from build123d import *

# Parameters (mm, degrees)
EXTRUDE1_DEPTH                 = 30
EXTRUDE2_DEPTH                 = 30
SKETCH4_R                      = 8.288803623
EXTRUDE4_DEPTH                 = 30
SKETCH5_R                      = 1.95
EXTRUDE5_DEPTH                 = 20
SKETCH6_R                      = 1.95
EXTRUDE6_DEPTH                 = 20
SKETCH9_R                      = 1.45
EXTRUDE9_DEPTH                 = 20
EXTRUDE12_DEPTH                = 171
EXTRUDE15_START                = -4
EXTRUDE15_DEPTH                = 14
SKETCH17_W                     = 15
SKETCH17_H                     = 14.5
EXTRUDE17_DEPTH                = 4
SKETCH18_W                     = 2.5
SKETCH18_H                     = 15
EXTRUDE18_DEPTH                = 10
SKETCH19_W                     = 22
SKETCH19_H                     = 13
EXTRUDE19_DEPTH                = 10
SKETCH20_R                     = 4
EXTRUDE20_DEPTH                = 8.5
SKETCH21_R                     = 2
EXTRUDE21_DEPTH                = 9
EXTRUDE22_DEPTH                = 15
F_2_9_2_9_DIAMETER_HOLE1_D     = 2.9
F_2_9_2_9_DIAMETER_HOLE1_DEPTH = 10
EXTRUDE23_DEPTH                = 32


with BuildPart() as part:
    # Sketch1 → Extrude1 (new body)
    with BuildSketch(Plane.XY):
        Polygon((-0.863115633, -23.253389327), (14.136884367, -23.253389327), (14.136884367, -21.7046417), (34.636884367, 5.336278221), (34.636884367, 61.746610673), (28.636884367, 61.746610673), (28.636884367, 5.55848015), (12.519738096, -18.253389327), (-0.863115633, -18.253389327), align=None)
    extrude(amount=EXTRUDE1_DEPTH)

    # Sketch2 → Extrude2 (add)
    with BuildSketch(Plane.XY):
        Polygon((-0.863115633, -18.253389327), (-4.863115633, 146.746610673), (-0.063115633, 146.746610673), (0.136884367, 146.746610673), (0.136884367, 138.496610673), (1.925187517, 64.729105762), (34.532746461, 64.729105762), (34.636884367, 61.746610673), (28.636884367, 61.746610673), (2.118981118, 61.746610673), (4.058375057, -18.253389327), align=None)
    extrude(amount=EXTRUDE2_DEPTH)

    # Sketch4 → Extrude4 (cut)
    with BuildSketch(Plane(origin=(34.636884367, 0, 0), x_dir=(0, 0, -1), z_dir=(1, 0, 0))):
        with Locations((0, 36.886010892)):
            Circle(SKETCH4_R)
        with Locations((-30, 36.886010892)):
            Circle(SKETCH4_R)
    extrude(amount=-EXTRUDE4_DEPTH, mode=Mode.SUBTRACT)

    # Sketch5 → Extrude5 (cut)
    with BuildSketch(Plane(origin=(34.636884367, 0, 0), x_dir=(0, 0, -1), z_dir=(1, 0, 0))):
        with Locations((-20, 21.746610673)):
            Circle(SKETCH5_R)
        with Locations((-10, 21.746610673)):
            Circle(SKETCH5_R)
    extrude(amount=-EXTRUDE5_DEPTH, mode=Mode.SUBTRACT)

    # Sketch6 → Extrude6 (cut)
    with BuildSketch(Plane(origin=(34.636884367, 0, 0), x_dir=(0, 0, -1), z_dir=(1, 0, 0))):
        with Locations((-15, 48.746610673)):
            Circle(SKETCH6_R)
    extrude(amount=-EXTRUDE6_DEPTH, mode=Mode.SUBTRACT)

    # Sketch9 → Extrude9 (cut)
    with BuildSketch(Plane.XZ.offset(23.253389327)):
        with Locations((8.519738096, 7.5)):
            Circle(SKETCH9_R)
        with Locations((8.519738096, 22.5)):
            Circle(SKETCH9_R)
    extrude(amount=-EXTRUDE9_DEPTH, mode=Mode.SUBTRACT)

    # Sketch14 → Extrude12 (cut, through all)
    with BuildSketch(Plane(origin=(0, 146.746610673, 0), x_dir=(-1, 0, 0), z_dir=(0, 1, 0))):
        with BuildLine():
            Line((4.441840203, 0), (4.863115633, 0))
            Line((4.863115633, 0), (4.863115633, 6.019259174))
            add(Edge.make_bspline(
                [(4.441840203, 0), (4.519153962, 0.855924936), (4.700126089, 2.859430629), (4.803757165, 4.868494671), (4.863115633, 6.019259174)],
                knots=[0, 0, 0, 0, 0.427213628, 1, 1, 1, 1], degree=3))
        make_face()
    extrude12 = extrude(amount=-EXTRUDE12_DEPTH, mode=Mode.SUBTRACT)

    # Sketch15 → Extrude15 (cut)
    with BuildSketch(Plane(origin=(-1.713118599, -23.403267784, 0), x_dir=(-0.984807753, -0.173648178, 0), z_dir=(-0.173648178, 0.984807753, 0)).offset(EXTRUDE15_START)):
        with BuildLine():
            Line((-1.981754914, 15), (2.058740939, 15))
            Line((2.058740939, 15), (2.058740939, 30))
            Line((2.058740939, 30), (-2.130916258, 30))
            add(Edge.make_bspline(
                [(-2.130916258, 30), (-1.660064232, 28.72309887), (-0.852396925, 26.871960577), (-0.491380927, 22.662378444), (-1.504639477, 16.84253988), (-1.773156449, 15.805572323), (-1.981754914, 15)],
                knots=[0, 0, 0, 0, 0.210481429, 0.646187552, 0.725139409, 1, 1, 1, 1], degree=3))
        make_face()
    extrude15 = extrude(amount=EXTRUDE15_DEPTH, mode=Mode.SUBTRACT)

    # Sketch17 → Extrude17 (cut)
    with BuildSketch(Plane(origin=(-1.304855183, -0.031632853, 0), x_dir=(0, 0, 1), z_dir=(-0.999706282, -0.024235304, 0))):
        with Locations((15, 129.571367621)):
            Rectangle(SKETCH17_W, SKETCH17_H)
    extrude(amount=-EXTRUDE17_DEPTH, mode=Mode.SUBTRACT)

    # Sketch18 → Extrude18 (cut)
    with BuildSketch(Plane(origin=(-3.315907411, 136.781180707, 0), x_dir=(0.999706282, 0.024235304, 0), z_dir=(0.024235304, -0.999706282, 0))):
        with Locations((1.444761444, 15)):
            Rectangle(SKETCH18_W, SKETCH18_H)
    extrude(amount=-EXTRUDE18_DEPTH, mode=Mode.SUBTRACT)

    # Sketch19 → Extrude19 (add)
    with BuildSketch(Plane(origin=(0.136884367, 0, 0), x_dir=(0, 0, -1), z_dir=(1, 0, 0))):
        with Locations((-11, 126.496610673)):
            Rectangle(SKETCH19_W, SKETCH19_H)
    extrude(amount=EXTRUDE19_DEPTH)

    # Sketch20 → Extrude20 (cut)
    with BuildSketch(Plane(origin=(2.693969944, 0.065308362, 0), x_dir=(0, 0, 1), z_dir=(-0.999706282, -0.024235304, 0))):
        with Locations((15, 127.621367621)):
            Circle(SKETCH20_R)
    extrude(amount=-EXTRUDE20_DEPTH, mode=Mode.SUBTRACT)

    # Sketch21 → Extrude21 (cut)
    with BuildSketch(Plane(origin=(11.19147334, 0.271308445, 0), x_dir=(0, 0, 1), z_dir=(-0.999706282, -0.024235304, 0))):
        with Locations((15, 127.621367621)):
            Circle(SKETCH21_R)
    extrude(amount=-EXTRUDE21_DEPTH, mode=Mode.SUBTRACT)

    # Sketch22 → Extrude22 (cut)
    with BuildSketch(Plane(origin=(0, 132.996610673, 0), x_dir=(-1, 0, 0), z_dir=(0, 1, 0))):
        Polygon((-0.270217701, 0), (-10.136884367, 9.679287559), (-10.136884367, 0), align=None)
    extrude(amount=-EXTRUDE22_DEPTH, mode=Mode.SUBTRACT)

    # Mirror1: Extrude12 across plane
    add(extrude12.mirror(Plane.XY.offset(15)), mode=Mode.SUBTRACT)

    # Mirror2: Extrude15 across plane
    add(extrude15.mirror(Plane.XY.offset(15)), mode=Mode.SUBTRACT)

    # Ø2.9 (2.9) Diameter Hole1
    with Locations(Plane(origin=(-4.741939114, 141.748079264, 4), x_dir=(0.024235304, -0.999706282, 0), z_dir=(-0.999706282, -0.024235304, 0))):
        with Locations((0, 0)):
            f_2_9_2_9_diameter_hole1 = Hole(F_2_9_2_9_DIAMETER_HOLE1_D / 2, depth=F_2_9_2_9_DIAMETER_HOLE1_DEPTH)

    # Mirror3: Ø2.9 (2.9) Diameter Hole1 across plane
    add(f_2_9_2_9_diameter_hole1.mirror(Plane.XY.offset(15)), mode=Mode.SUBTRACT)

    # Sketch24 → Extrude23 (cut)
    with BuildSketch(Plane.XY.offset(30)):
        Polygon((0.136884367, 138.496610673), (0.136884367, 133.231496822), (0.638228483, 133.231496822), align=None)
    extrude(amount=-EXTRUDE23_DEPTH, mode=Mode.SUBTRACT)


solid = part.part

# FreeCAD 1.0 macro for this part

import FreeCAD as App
import Part
import Sketcher

doc = App.newDocument("Part")
body = doc.addObject("PartDesign::Body", "Body")

sketch1 = doc.addObject("Sketcher::SketchObject", "Sketch")
body.addObject(sketch1)
sketch1.AttachmentSupport = (doc.XY_Plane, [""])
sketch1.MapMode = "FlatFace"
sketch1.addGeometry([
    Part.LineSegment(App.Vector(-0.863116, -23.253389, 0), App.Vector(14.136884, -23.253389, 0)),
    Part.LineSegment(App.Vector(14.136884, -23.253389, 0), App.Vector(14.136884, -21.704642, 0)),
    Part.LineSegment(App.Vector(14.136884, -21.704642, 0), App.Vector(34.636884, 5.336278, 0)),
    Part.LineSegment(App.Vector(34.636884, 5.336278, 0), App.Vector(34.636884, 61.746611, 0)),
    Part.LineSegment(App.Vector(34.636884, 61.746611, 0), App.Vector(28.636884, 61.746611, 0)),
    Part.LineSegment(App.Vector(28.636884, 61.746611, 0), App.Vector(28.636884, 5.55848, 0)),
    Part.LineSegment(App.Vector(28.636884, 5.55848, 0), App.Vector(12.519738, -18.253389, 0)),
    Part.LineSegment(App.Vector(12.519738, -18.253389, 0), App.Vector(-0.863116, -18.253389, 0)),
    Part.LineSegment(App.Vector(-0.863116, -18.253389, 0), App.Vector(-0.863116, -23.253389, 0)),
], False)
sketch1.addConstraint([
    Sketcher.Constraint("Coincident", 0, 2, 1, 1),
    Sketcher.Constraint("Coincident", 1, 2, 2, 1),
    Sketcher.Constraint("Coincident", 2, 2, 3, 1),
    Sketcher.Constraint("Coincident", 3, 2, 4, 1),
    Sketcher.Constraint("Coincident", 4, 2, 5, 1),
    Sketcher.Constraint("Coincident", 5, 2, 6, 1),
    Sketcher.Constraint("Coincident", 6, 2, 7, 1),
    Sketcher.Constraint("Coincident", 7, 2, 8, 1),
    Sketcher.Constraint("Coincident", 8, 2, 0, 1),
    Sketcher.Constraint("Horizontal", 0),
    Sketcher.Constraint("Vertical", 1),
    Sketcher.Constraint("Vertical", 3),
    Sketcher.Constraint("Horizontal", 4),
    Sketcher.Constraint("Vertical", 5),
    Sketcher.Constraint("Horizontal", 7),
    Sketcher.Constraint("Vertical", 8),
    Sketcher.Constraint("DistanceX", 0, 1, 0, 2, 15.0),
    Sketcher.Constraint("DistanceX", 4, 2, 4, 1, 6.0),
    Sketcher.Constraint("DistanceY", 8, 2, 8, 1, 5.0),
    Sketcher.Constraint("DistanceY", 0, 2, 3, 2, 85.0),
    Sketcher.Constraint("DistanceX", 1, 2, 2, 2, 20.5),
    Sketcher.Constraint("DistanceY", 5, 2, 5, 1, 56.188131),
    Sketcher.Constraint("DistanceY", 2, 2, 5, 2, 0.222202),
    Sketcher.Constraint("Distance", 2, 33.93319),
    Sketcher.Constraint("DistanceX", 7, 2, 7, 1, 13.382854),
    Sketcher.Constraint("DistanceY", 0, 2, -1, 1, 23.253389),
    Sketcher.Constraint("DistanceX", -1, 1, 6, 2, 12.519738),
])
pad1 = doc.addObject("PartDesign::Pad", "Pad")
body.addObject(pad1)
pad1.Profile = sketch1
pad1.Length = 30

sketch2 = doc.addObject("Sketcher::SketchObject", "Sketch001")
body.addObject(sketch2)
sketch2.AttachmentSupport = (doc.XY_Plane, [""])
sketch2.MapMode = "FlatFace"
sketch2.addGeometry([
    Part.LineSegment(App.Vector(-4.863116, 146.746611, 0), App.Vector(-0.863116, -18.253389, 0)),
    Part.LineSegment(App.Vector(-0.863116, -18.253389, 0), App.Vector(4.058375, -18.253389, 0)),
    Part.LineSegment(App.Vector(4.058375, -18.253389, 0), App.Vector(2.118981, 61.746611, 0)),
    Part.LineSegment(App.Vector(2.118981, 61.746611, 0), App.Vector(34.636884, 61.746611, 0)),
    Part.LineSegment(App.Vector(34.636884, 61.746611, 0), App.Vector(34.532746, 64.729106, 0)),
    Part.LineSegment(App.Vector(34.532746, 64.729106, 0), App.Vector(1.925188, 64.729106, 0)),
    Part.LineSegment(App.Vector(1.925188, 64.729106, 0), App.Vector(0.136884, 138.496611, 0)),
    Part.LineSegment(App.Vector(0.136884, 138.496611, 0), App.Vector(0.136884, 146.746611, 0)),
    Part.LineSegment(App.Vector(0.136884, 146.746611, 0), App.Vector(-4.863116, 146.746611, 0)),
], False)
sketch2.addConstraint([
    Sketcher.Constraint("Coincident", 0, 2, 1, 1),
    Sketcher.Constraint("Coincident", 1, 2, 2, 1),
    Sketcher.Constraint("Coincident", 2, 2, 3, 1),
    Sketcher.Constraint("Coincident", 3, 2, 4, 1),
    Sketcher.Constraint("Coincident", 4, 2, 5, 1),
    Sketcher.Constraint("Coincident", 5, 2, 6, 1),
    Sketcher.Constraint("Coincident", 6, 2, 7, 1),
    Sketcher.Constraint("Coincident", 7, 2, 8, 1),
    Sketcher.Constraint("Coincident", 8, 2, 0, 1),
    Sketcher.Constraint("Horizontal", 1),
    Sketcher.Constraint("Horizontal", 3),
    Sketcher.Constraint("Horizontal", 5),
    Sketcher.Constraint("Vertical", 7),
    Sketcher.Constraint("Horizontal", 8),
    Sketcher.Constraint("Parallel", 0, 2),
    Sketcher.Constraint("Parallel", 2, 6),
    Sketcher.Constraint("DistanceX", 8, 2, 8, 1, 5.0),
    Sketcher.Constraint("DistanceY", 1, 2, 2, 2, 80.0),
    Sketcher.Constraint("DistanceX", 0, 2, 6, 2, 1.0),
    Sketcher.Constraint("DistanceY", 2, 2, 7, 2, 85.0),
    Sketcher.Constraint("DistanceY", 7, 1, 7, 2, 8.25),
    Sketcher.Constraint("DistanceX", 0, 2, 3, 2, 35.5),
    Sketcher.Constraint("DistanceX", 1, 1, 1, 2, 4.921491),
    Sketcher.Constraint("DistanceX", 5, 2, 5, 1, 32.607559),
    Sketcher.Constraint("Distance", 6, 73.789178),
    Sketcher.Constraint("DistanceY", 0, 2, -1, 1, 18.253389),
    Sketcher.Constraint("DistanceX", -1, 1, 2, 2, 2.118981),
])
pad2 = doc.addObject("PartDesign::Pad", "Pad001")
body.addObject(pad2)
pad2.Profile = sketch2
pad2.Length = 30

sketch3 = doc.addObject("Sketcher::SketchObject", "Sketch002")
body.addObject(sketch3)
sketch3.AttachmentSupport = (doc.YZ_Plane, [""])
sketch3.MapMode = "FlatFace"
sketch3.AttachmentOffset = App.Placement(App.Vector(0, 0, 34.636884), App.Rotation())
sketch3.addGeometry([
    Part.Circle(App.Vector(36.886011, 0, 0), App.Vector(0, 0, 1), 8.288804),
    Part.Circle(App.Vector(36.886011, 30, 0), App.Vector(0, 0, 1), 8.288804),
], False)
sketch3.addConstraint([
    Sketcher.Constraint("Equal", 0, 1),
    Sketcher.Constraint("PointOnObject", 0, 3, -1),
    Sketcher.Constraint("Vertical", 0, 3, 1, 3),
    Sketcher.Constraint("DistanceY", -1, 1, 1, 3, 30.0),
    Sketcher.Constraint("Diameter", 0, 16.577607),
    Sketcher.Constraint("DistanceX", -1, 1, 0, 3, 36.886011),
])
pocket1 = doc.addObject("PartDesign::Pocket", "Pocket")
body.addObject(pocket1)
pocket1.Profile = sketch3
pocket1.Length = 30

sketch4 = doc.addObject("Sketcher::SketchObject", "Sketch003")
body.addObject(sketch4)
sketch4.AttachmentSupport = (doc.YZ_Plane, [""])
sketch4.MapMode = "FlatFace"
sketch4.AttachmentOffset = App.Placement(App.Vector(0, 0, 34.636884), App.Rotation())
sketch4.addGeometry([
    Part.Circle(App.Vector(21.746611, 20, 0), App.Vector(0, 0, 1), 1.95),
    Part.Circle(App.Vector(21.746611, 10, 0), App.Vector(0, 0, 1), 1.95),
], False)
sketch4.addConstraint([
    Sketcher.Constraint("Equal", 0, 1),
    Sketcher.Constraint("Vertical", 0, 3, 1, 3),
    Sketcher.Constraint("Diameter", 0, 3.9),
    Sketcher.Constraint("DistanceY", -1, 1, 0, 3, 20.0),
    Sketcher.Constraint("DistanceY", -1, 1, 1, 3, 10.0),
    Sketcher.Constraint("DistanceX", -1, 1, 0, 3, 21.746611),
])
pocket2 = doc.addObject("PartDesign::Pocket", "Pocket001")
body.addObject(pocket2)
pocket2.Profile = sketch4
pocket2.Length = 20

sketch5 = doc.addObject("Sketcher::SketchObject", "Sketch004")
body.addObject(sketch5)
sketch5.AttachmentSupport = (doc.YZ_Plane, [""])
sketch5.MapMode = "FlatFace"
sketch5.AttachmentOffset = App.Placement(App.Vector(0, 0, 34.636884), App.Rotation())
sketch5.addGeometry(Part.Circle(App.Vector(48.746611, 15, 0), App.Vector(0, 0, 1), 1.95), False)
sketch5.addConstraint([
    Sketcher.Constraint("Diameter", 0, 3.9),
    Sketcher.Constraint("DistanceY", -1, 1, 0, 3, 15.0),
    Sketcher.Constraint("DistanceX", -1, 1, 0, 3, 48.746611),
])
pocket3 = doc.addObject("PartDesign::Pocket", "Pocket002")
body.addObject(pocket3)
pocket3.Profile = sketch5
pocket3.Length = 20

sketch6 = doc.addObject("Sketcher::SketchObject", "Sketch005")
body.addObject(sketch6)
sketch6.AttachmentSupport = (doc.XZ_Plane, [""])
sketch6.MapMode = "FlatFace"
sketch6.AttachmentOffset = App.Placement(App.Vector(0, 0, 23.253389), App.Rotation())
sketch6.addGeometry([
    Part.Circle(App.Vector(8.519738, 7.5, 0), App.Vector(0, 0, 1), 1.45),
    Part.Circle(App.Vector(8.519738, 22.5, 0), App.Vector(0, 0, 1), 1.45),
], False)
sketch6.addConstraint([
    Sketcher.Constraint("Equal", 0, 1),
    Sketcher.Constraint("Vertical", 0, 3, 1, 3),
    Sketcher.Constraint("Diameter", 0, 2.9),
    Sketcher.Constraint("DistanceY", 0, 3, 1, 3, 15.0),
    Sketcher.Constraint("DistanceY", -1, 1, 0, 3, 7.5),
    Sketcher.Constraint("DistanceX", -1, 1, 0, 3, 8.519738),
])
pocket4 = doc.addObject("PartDesign::Pocket", "Pocket003")
body.addObject(pocket4)
pocket4.Profile = sketch6
pocket4.Length = 20

sketch7 = doc.addObject("Sketcher::SketchObject", "Sketch006")
body.addObject(sketch7)
sketch7.AttachmentSupport = (doc.XZ_Plane, [""])
sketch7.MapMode = "FlatFace"
sketch7.AttachmentOffset = App.Placement(App.Vector(0, 0, -146.746611), App.Rotation())
sketch7.addGeometry([
    Part.LineSegment(App.Vector(-4.44184, 0, 0), App.Vector(-4.863116, 0, 0)),
    Part.LineSegment(App.Vector(-4.863116, 0, 0), App.Vector(-4.863116, 6.019259, 0)),
    Part.BSplineCurve([App.Vector(-4.44184, 0, 0), App.Vector(-4.519154, 0.855925, 0), App.Vector(-4.700126, 2.859431, 0), App.Vector(-4.803757, 4.868495, 0), App.Vector(-4.863116, 6.019259, 0)], [4, 1, 4], [0, 0.427213628, 1], False, 3, [1, 1, 1, 1, 1], False),
], False)
sketch7.addConstraint([
    Sketcher.Constraint("Block", 2),
    Sketcher.Constraint("Coincident", 0, 2, 1, 1),
    Sketcher.Constraint("Coincident", 1, 2, 2, 2),
    Sketcher.Constraint("Coincident", 2, 1, 0, 1),
    Sketcher.Constraint("Horizontal", 0),
    Sketcher.Constraint("Vertical", 1),
])
pocket5 = doc.addObject("PartDesign::Pocket", "Pocket004")
body.addObject(pocket5)
pocket5.Profile = sketch7
pocket5.Type = "ThroughAll"
pocket5.Reversed = True

sketch8 = doc.addObject("Sketcher::SketchObject", "Sketch007")
body.addObject(sketch8)
sketch8.Placement = App.Placement(App.Vector(-1.018526, -27.342499, 0), App.Rotation(App.Vector(-0.984807753, -0.173648178, 0), App.Vector(0, 0, 1), App.Vector(-0.173648178, 0.984807753, 0), "ZXY"))
sketch8.addGeometry([
    Part.LineSegment(App.Vector(-1.981755, 15, 0), App.Vector(2.058741, 15, 0)),
    Part.LineSegment(App.Vector(2.058741, 15, 0), App.Vector(2.058741, 30, 0)),
    Part.LineSegment(App.Vector(2.058741, 30, 0), App.Vector(-2.130916, 30, 0)),
    Part.BSplineCurve([App.Vector(-2.130916, 30, 0), App.Vector(-1.660064, 28.723099, 0), App.Vector(-0.852397, 26.871961, 0), App.Vector(-0.491381, 22.662378, 0), App.Vector(-1.504639, 16.84254, 0), App.Vector(-1.773156, 15.805572, 0), App.Vector(-1.981755, 15, 0)], [4, 1, 1, 1, 4], [0, 0.210481429, 0.646187552, 0.725139409, 1], False, 3, [1, 1, 1, 1, 1, 1, 1], False),
], False)
sketch8.addConstraint([
    Sketcher.Constraint("Block", 3),
    Sketcher.Constraint("Coincident", 0, 2, 1, 1),
    Sketcher.Constraint("Coincident", 1, 2, 2, 1),
    Sketcher.Constraint("Coincident", 2, 2, 3, 1),
    Sketcher.Constraint("Coincident", 3, 2, 0, 1),
    Sketcher.Constraint("Horizontal", 0),
    Sketcher.Constraint("Vertical", 1),
    Sketcher.Constraint("Horizontal", 2),
    Sketcher.Constraint("DistanceX", 0, 1, 0, 2, 4.040496),
])
pocket6 = doc.addObject("PartDesign::Pocket", "Pocket005")
body.addObject(pocket6)
pocket6.Profile = sketch8
pocket6.Length = 14
pocket6.Reversed = True

sketch9 = doc.addObject("Sketcher::SketchObject", "Sketch008")
body.addObject(sketch9)
sketch9.Placement = App.Placement(App.Vector(-1.304855, -0.031633, 0), App.Rotation(App.Vector(0, 0, 1), App.Vector(-0.024235304, 0.999706282, 0), App.Vector(-0.999706282, -0.024235304, 0), "ZXY"))
sketch9.addGeometry([
    Part.LineSegment(App.Vector(7.5, 136.821368, 0), App.Vector(7.5, 122.321368, 0)),
    Part.LineSegment(App.Vector(7.5, 122.321368, 0), App.Vector(22.5, 122.321368, 0)),
    Part.LineSegment(App.Vector(22.5, 122.321368, 0), App.Vector(22.5, 136.821368, 0)),
    Part.LineSegment(App.Vector(22.5, 136.821368, 0), App.Vector(7.5, 136.821368, 0)),
], False)
sketch9.addConstraint([
    Sketcher.Constraint("Coincident", 0, 2, 1, 1),
    Sketcher.Constraint("Coincident", 1, 2, 2, 1),
    Sketcher.Constraint("Coincident", 2, 2, 3, 1),
    Sketcher.Constraint("Coincident", 3, 2, 0, 1),
    Sketcher.Constraint("Vertical", 0),
    Sketcher.Constraint("Horizontal", 1),
    Sketcher.Constraint("Vertical", 2),
    Sketcher.Constraint("Horizontal", 3),
    Sketcher.Constraint("DistanceX", 1, 1, 1, 2, 15.0),
    Sketcher.Constraint("DistanceY", 0, 2, 0, 1, 14.5),
    Sketcher.Constraint("DistanceX", -1, 1, 0, 2, 7.5),
    Sketcher.Constraint("DistanceY", -1, 1, 0, 2, 122.321368),
])
pocket7 = doc.addObject("PartDesign::Pocket", "Pocket006")
body.addObject(pocket7)
pocket7.Profile = sketch9
pocket7.Length = 4

sketch10 = doc.addObject("Sketcher::SketchObject", "Sketch009")
body.addObject(sketch10)
sketch10.Placement = App.Placement(App.Vector(-3.315907, 136.781181, 0), App.Rotation(App.Vector(0.999706282, 0.024235304, 0), App.Vector(0, 0, 1), App.Vector(0.024235304, -0.999706282, 0), "ZXY"))
sketch10.addGeometry([
    Part.LineSegment(App.Vector(0.194761, 22.5, 0), App.Vector(0.194761, 7.5, 0)),
    Part.LineSegment(App.Vector(0.194761, 7.5, 0), App.Vector(2.694761, 7.5, 0)),
    Part.LineSegment(App.Vector(2.694761, 7.5, 0), App.Vector(2.694761, 22.5, 0)),
    Part.LineSegment(App.Vector(2.694761, 22.5, 0), App.Vector(0.194761, 22.5, 0)),
], False)
sketch10.addConstraint([
    Sketcher.Constraint("Coincident", 0, 2, 1, 1),
    Sketcher.Constraint("Coincident", 1, 2, 2, 1),
    Sketcher.Constraint("Coincident", 2, 2, 3, 1),
    Sketcher.Constraint("Coincident", 3, 2, 0, 1),
    Sketcher.Constraint("Vertical", 0),
    Sketcher.Constraint("Horizontal", 1),
    Sketcher.Constraint("Vertical", 2),
    Sketcher.Constraint("Horizontal", 3),
    Sketcher.Constraint("DistanceY", 0, 2, 0, 1, 15.0),
    Sketcher.Constraint("DistanceX", 1, 1, 1, 2, 2.5),
    Sketcher.Constraint("DistanceY", -1, 1, 0, 2, 7.5),
    Sketcher.Constraint("DistanceX", -1, 1, 0, 2, 0.194761),
])
pocket8 = doc.addObject("PartDesign::Pocket", "Pocket007")
body.addObject(pocket8)
pocket8.Profile = sketch10
pocket8.Length = 10

sketch11 = doc.addObject("Sketcher::SketchObject", "Sketch010")
body.addObject(sketch11)
sketch11.AttachmentSupport = (doc.YZ_Plane, [""])
sketch11.MapMode = "FlatFace"
sketch11.AttachmentOffset = App.Placement(App.Vector(0, 0, 0.136884), App.Rotation())
sketch11.addGeometry([
    Part.LineSegment(App.Vector(132.996611, 22, 0), App.Vector(119.996611, 22, 0)),
    Part.LineSegment(App.Vector(119.996611, 22, 0), App.Vector(119.996611, 0, 0)),
    Part.LineSegment(App.Vector(119.996611, 0, 0), App.Vector(132.996611, 0, 0)),
    Part.LineSegment(App.Vector(132.996611, 0, 0), App.Vector(132.996611, 22, 0)),
], False)
sketch11.addConstraint([
    Sketcher.Constraint("Coincident", 0, 2, 1, 1),
    Sketcher.Constraint("Coincident", 1, 2, 2, 1),
    Sketcher.Constraint("Coincident", 2, 2, 3, 1),
    Sketcher.Constraint("Coincident", 3, 2, 0, 1),
    Sketcher.Constraint("Horizontal", 0),
    Sketcher.Constraint("Vertical", 1),
    Sketcher.Constraint("Horizontal", 2),
    Sketcher.Constraint("Vertical", 3),
    Sketcher.Constraint("PointOnObject", 1, 2, -1),
    Sketcher.Constraint("DistanceX", 0, 2, 0, 1, 13.0),
    Sketcher.Constraint("DistanceY", 1, 2, 1, 1, 22.0),
    Sketcher.Constraint("DistanceX", -1, 1, 0, 2, 119.996611),
])
pad3 = doc.addObject("PartDesign::Pad", "Pad002")
body.addObject(pad3)
pad3.Profile = sketch11
pad3.Length = 10

sketch12 = doc.addObject("Sketcher::SketchObject", "Sketch011")
body.addObject(sketch12)
sketch12.Placement = App.Placement(App.Vector(2.69397, 0.065308, 0), App.Rotation(App.Vector(0, 0, 1), App.Vector(-0.024235304, 0.999706282, 0), App.Vector(-0.999706282, -0.024235304, 0), "ZXY"))
sketch12.addGeometry(Part.Circle(App.Vector(15, 127.621368, 0), App.Vector(0, 0, 1), 4), False)
sketch12.addConstraint([
    Sketcher.Constraint("Diameter", 0, 8.0),
    Sketcher.Constraint("DistanceX", -1, 1, 0, 3, 15.0),
    Sketcher.Constraint("DistanceY", -1, 1, 0, 3, 127.621368),
])
pocket9 = doc.addObject("PartDesign::Pocket", "Pocket008")
body.addObject(pocket9)
pocket9.Profile = sketch12
pocket9.Length = 8.5

sketch13 = doc.addObject("Sketcher::SketchObject", "Sketch012")
body.addObject(sketch13)
sketch13.Placement = App.Placement(App.Vector(11.191473, 0.271308, 0), App.Rotation(App.Vector(0, 0, 1), App.Vector(-0.024235304, 0.999706282, 0), App.Vector(-0.999706282, -0.024235304, 0), "ZXY"))
sketch13.addGeometry(Part.Circle(App.Vector(15, 127.621368, 0), App.Vector(0, 0, 1), 2), False)
sketch13.addConstraint([
    Sketcher.Constraint("Diameter", 0, 4.0),
    Sketcher.Constraint("DistanceX", -1, 1, 0, 3, 15.0),
    Sketcher.Constraint("DistanceY", -1, 1, 0, 3, 127.621368),
])
pocket10 = doc.addObject("PartDesign::Pocket", "Pocket009")
body.addObject(pocket10)
pocket10.Profile = sketch13
pocket10.Length = 9

sketch14 = doc.addObject("Sketcher::SketchObject", "Sketch013")
body.addObject(sketch14)
sketch14.AttachmentSupport = (doc.XZ_Plane, [""])
sketch14.MapMode = "FlatFace"
sketch14.AttachmentOffset = App.Placement(App.Vector(0, 0, -132.996611), App.Rotation())
sketch14.addGeometry([
    Part.LineSegment(App.Vector(0.270218, 0, 0), App.Vector(10.136884, 9.679288, 0)),
    Part.LineSegment(App.Vector(10.136884, 9.679288, 0), App.Vector(10.136884, 0, 0)),
    Part.LineSegment(App.Vector(10.136884, 0, 0), App.Vector(0.270218, 0, 0)),
], False)
sketch14.addConstraint([
    Sketcher.Constraint("Coincident", 0, 2, 1, 1),
    Sketcher.Constraint("Coincident", 1, 2, 2, 1),
    Sketcher.Constraint("Coincident", 2, 2, 0, 1),
    Sketcher.Constraint("Vertical", 1),
    Sketcher.Constraint("Horizontal", 2),
    Sketcher.Constraint("PointOnObject", 1, 2, -1),
    Sketcher.Constraint("Distance", 0, 13.821712),
    Sketcher.Constraint("DistanceX", 2, 2, 2, 1, 9.866667),
    Sketcher.Constraint("DistanceX", -1, 1, 0, 2, 10.136884),
])
pocket11 = doc.addObject("PartDesign::Pocket", "Pocket010")
body.addObject(pocket11)
pocket11.Profile = sketch14
pocket11.Length = 15
pocket11.Reversed = True
doc.recompute()

datumplane = doc.addObject("PartDesign::Plane", "DatumPlane")
body.addObject(datumplane)
datumplane.AttachmentSupport = (doc.XY_Plane, [""])
datumplane.MapMode = "FlatFace"
datumplane.AttachmentOffset = App.Placement(App.Vector(0, 0, 15), App.Rotation())
mirrored = doc.addObject("PartDesign::Mirrored", "Mirrored")
body.addObject(mirrored)
mirrored.Originals = [pocket5]
mirrored.MirrorPlane = (datumplane, [""])
body.Tip = mirrored
doc.recompute()

datumplane2 = doc.addObject("PartDesign::Plane", "DatumPlane001")
body.addObject(datumplane2)
datumplane2.AttachmentSupport = (doc.XY_Plane, [""])
datumplane2.MapMode = "FlatFace"
datumplane2.AttachmentOffset = App.Placement(App.Vector(0, 0, 15), App.Rotation())
mirrored2 = doc.addObject("PartDesign::Mirrored", "Mirrored001")
body.addObject(mirrored2)
mirrored2.Originals = [pocket6]
mirrored2.MirrorPlane = (datumplane2, [""])
body.Tip = mirrored2

sketch15 = doc.addObject("Sketcher::SketchObject", "Sketch014")
body.addObject(sketch15)
sketch15.Placement = App.Placement(App.Vector(-1.304855, -0.031633, 0), App.Rotation(App.Vector(0.024235304, -0.999706282, 0), App.Vector(0, 0, 1), App.Vector(-0.999706282, -0.024235304, 0), "ZXY"))
sketch15.addGeometry(Part.Circle(App.Vector(-141.821368, 4, 0), App.Vector(0, 0, 1), 1.45), False)
sketch15.addConstraint([
    Sketcher.Constraint("Diameter", 0, 2.9),
    Sketcher.Constraint("DistanceY", -1, 1, 0, 3, 4.0),
    Sketcher.Constraint("DistanceX", 0, 3, -1, 1, 141.821368),
])
doc.recompute()
hole = doc.addObject("PartDesign::Hole", "Hole")
body.addObject(hole)
hole.Profile = sketch15
hole.ThreadType = "None"
hole.Diameter = 2.9
hole.DepthType = "Dimension"
hole.Depth = 10
hole.DrillPoint = "Flat"
doc.recompute()

datumplane3 = doc.addObject("PartDesign::Plane", "DatumPlane002")
body.addObject(datumplane3)
datumplane3.AttachmentSupport = (doc.XY_Plane, [""])
datumplane3.MapMode = "FlatFace"
datumplane3.AttachmentOffset = App.Placement(App.Vector(0, 0, 15), App.Rotation())
mirrored3 = doc.addObject("PartDesign::Mirrored", "Mirrored002")
body.addObject(mirrored3)
mirrored3.Originals = [hole]
mirrored3.MirrorPlane = (datumplane3, [""])
body.Tip = mirrored3

sketch16 = doc.addObject("Sketcher::SketchObject", "Sketch015")
body.addObject(sketch16)
sketch16.AttachmentSupport = (doc.XY_Plane, [""])
sketch16.MapMode = "FlatFace"
sketch16.AttachmentOffset = App.Placement(App.Vector(0, 0, 30), App.Rotation())
sketch16.addGeometry([
    Part.LineSegment(App.Vector(0.136884, 138.496611, 0), App.Vector(0.136884, 133.231497, 0)),
    Part.LineSegment(App.Vector(0.136884, 133.231497, 0), App.Vector(0.638228, 133.231497, 0)),
    Part.LineSegment(App.Vector(0.638228, 133.231497, 0), App.Vector(0.136884, 138.496611, 0)),
], False)
sketch16.addConstraint([
    Sketcher.Constraint("Coincident", 0, 2, 1, 1),
    Sketcher.Constraint("Coincident", 1, 2, 2, 1),
    Sketcher.Constraint("Coincident", 2, 2, 0, 1),
    Sketcher.Constraint("Vertical", 0),
    Sketcher.Constraint("Horizontal", 1),
    Sketcher.Constraint("Distance", 2, 5.288929),
    Sketcher.Constraint("DistanceX", 1, 1, 1, 2, 0.501344),
    Sketcher.Constraint("DistanceX", -1, 1, 1, 2, 0.638228),
    Sketcher.Constraint("DistanceY", -1, 1, 2, 2, 138.496611),
])
pocket12 = doc.addObject("PartDesign::Pocket", "Pocket011")
body.addObject(pocket12)
pocket12.Profile = sketch16
pocket12.Length = 32

doc.recompute()
